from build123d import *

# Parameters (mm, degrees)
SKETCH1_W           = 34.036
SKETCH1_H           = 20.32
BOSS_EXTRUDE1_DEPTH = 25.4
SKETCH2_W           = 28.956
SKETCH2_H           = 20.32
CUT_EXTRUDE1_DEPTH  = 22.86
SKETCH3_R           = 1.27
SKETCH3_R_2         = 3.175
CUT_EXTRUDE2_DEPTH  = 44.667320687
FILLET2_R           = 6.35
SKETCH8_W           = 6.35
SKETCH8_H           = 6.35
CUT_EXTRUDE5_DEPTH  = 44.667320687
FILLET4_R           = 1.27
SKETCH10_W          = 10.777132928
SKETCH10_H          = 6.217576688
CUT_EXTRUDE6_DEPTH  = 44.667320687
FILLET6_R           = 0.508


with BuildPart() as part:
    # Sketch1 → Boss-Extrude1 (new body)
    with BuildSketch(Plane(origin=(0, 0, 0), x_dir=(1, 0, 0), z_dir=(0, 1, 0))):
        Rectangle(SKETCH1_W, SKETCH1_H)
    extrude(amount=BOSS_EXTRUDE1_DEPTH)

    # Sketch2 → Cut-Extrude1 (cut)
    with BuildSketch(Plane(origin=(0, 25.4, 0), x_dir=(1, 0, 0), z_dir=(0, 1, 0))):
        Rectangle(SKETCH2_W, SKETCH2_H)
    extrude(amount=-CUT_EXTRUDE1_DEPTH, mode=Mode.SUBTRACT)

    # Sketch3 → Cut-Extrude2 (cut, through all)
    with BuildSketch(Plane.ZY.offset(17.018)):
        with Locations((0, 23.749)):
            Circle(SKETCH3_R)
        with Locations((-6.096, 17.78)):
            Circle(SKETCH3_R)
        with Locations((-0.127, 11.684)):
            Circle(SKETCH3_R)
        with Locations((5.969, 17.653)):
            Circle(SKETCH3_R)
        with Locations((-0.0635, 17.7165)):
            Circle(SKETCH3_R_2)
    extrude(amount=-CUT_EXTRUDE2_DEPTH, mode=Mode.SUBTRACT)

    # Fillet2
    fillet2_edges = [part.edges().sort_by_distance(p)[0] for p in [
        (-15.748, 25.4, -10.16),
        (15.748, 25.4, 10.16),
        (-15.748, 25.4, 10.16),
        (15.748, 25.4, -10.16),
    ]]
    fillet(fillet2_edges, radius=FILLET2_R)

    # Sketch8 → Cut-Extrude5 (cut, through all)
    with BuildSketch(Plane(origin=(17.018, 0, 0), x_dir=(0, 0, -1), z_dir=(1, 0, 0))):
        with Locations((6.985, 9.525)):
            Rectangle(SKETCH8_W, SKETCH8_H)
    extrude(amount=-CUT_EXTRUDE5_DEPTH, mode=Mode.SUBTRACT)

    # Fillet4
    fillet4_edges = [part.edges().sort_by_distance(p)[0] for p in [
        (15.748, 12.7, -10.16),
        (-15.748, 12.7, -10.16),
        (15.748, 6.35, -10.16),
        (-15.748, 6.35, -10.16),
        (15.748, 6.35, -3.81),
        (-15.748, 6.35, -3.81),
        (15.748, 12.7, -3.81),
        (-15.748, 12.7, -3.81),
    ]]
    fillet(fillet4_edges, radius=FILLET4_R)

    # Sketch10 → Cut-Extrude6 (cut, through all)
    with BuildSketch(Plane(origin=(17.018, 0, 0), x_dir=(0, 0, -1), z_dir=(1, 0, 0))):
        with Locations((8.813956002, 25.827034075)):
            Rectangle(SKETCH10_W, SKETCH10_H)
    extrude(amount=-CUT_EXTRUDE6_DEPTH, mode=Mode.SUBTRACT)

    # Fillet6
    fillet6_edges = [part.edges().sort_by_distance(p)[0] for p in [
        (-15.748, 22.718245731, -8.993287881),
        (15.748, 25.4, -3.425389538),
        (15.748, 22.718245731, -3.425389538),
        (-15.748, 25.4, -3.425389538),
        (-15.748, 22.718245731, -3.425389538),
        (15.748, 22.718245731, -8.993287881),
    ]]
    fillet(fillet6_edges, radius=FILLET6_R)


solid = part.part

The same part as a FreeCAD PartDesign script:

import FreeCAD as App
import Part
import Sketcher
Q = App.Units.Quantity


def edges_at(feature, points):
    """Names of the edges that pass closest to the given points."""
    edges = feature.Shape.Edges
    near = lambda p: min(range(len(edges)), key=lambda i: edges[i].distToShape(Part.Vertex(*p))[0])
    return sorted({f"Edge{near(p) + 1}" for p in points})


def add_polygon(sketch, points):
    """Adds a closed chain of lines whose ends are joined by coincident constraints."""
    first, n = sketch.GeometryCount, len(points)
    for a, b in zip(points, points[1:] + points[:1]):
        sketch.addGeometry(Part.LineSegment(App.Vector(*a, 0), App.Vector(*b, 0)), False)
    for i in range(n):
        sketch.addConstraint(Sketcher.Constraint("Coincident", first + i, 2, first + (i + 1) % n, 1))

doc = App.newDocument("Part")
body = doc.addObject("PartDesign::Body", "Body")

# Sketch on XZ plane
sketch1 = doc.addObject("Sketcher::SketchObject", "Sketch")
body.addObject(sketch1)
sketch1.AttachmentSupport = (doc.XZ_Plane, [""])
sketch1.MapMode = "FlatFace"
add_polygon(sketch1, [(-17, -10), (-17, 10), (17, 10), (17, -10)])  # lines 0-3
sketch1.addConstraint(Sketcher.Constraint("Vertical", 0))
sketch1.addConstraint(Sketcher.Constraint("Horizontal", 1))
sketch1.addConstraint(Sketcher.Constraint("Vertical", 2))
sketch1.addConstraint(Sketcher.Constraint("Horizontal", 3))
sketch1.addConstraint(Sketcher.Constraint("Symmetric", 0, 2, 2, 2, -1, 1))
sketch1.addConstraint(Sketcher.Constraint("DistanceY", 0, 1, 0, 2, Q("0.8 in")))
sketch1.addConstraint(Sketcher.Constraint("DistanceX", 1, 1, 1, 2, Q("1.34 in")))
pad1 = doc.addObject("PartDesign::Pad", "Pad")
body.addObject(pad1)
pad1.Profile = sketch1
pad1.Length = Q("1 in")
pad1.Reversed = True

# Sketch on XZ plane
sketch2 = doc.addObject("Sketcher::SketchObject", "Sketch001")
body.addObject(sketch2)
sketch2.AttachmentSupport = (doc.XZ_Plane, [""])
sketch2.MapMode = "FlatFace"
sketch2.AttachmentOffset = App.Placement(App.Vector(0, 0, -1 * 25.4), App.Rotation())
add_polygon(sketch2, [(-14, -10), (-14, 10), (14, 10), (14, -10)])  # lines 0-3
sketch2.addConstraint(Sketcher.Constraint("Vertical", 0))
sketch2.addConstraint(Sketcher.Constraint("Horizontal", 1))
sketch2.addConstraint(Sketcher.Constraint("Vertical", 2))
sketch2.addConstraint(Sketcher.Constraint("Horizontal", 3))
sketch2.addConstraint(Sketcher.Constraint("Symmetric", 0, 2, 2, 2, -1, 1))
sketch2.addConstraint(Sketcher.Constraint("DistanceY", 0, 1, 0, 2, Q("0.8 in")))
sketch2.addConstraint(Sketcher.Constraint("DistanceX", 1, 1, 1, 2, Q("1.14 in")))
pocket1 = doc.addObject("PartDesign::Pocket", "Pocket")
body.addObject(pocket1)
pocket1.Profile = sketch2
pocket1.Length = Q("0.9 in")
pocket1.Reversed = True

# Sketch on YZ plane
sketch3 = doc.addObject("Sketcher::SketchObject", "Sketch002")
body.addObject(sketch3)
sketch3.AttachmentSupport = (doc.YZ_Plane, [""])
sketch3.MapMode = "FlatFace"
sketch3.AttachmentOffset = App.Placement(App.Vector(0, 0, -0.67 * 25.4), App.Rotation())
sketch3.addGeometry(Part.Circle(App.Vector(23.7, 0, 0), App.Vector(0, 0, 1), 1.3), False)
sketch3.addGeometry(Part.Circle(App.Vector(17.8, -6.1, 0), App.Vector(0, 0, 1), 1.3), False)
sketch3.addGeometry(Part.Circle(App.Vector(11.7, -0.1, 0), App.Vector(0, 0, 1), 1.3), False)
sketch3.addGeometry(Part.Circle(App.Vector(17.7, 6, 0), App.Vector(0, 0, 1), 1.3), False)
sketch3.addGeometry(Part.Circle(App.Vector(17.7, -0.1, 0), App.Vector(0, 0, 1), 3.2), False)
sketch3.addConstraint(Sketcher.Constraint("Equal", 0, 1))
sketch3.addConstraint(Sketcher.Constraint("Equal", 1, 2))
sketch3.addConstraint(Sketcher.Constraint("Equal", 2, 3))
sketch3.addConstraint(Sketcher.Constraint("PointOnObject", 0, 3, -1))
sketch3.addConstraint(Sketcher.Constraint("Diameter", 0, Q("0.1 in")))
sketch3.addConstraint(Sketcher.Constraint("Diameter", 4, Q("0.25 in")))
sketch3.addConstraint(Sketcher.Constraint("DistanceX", -1, 1, 1, 3, Q("0.7 in")))
sketch3.addConstraint(Sketcher.Constraint("DistanceY", 1, 3, -1, 1, Q("0.24 in")))
sketch3.addConstraint(Sketcher.Constraint("DistanceX", -1, 1, 2, 3, Q("0.46 in")))
sketch3.addConstraint(Sketcher.Constraint("DistanceX", 3, 3, 0, 3, Q("0.24 in")))
sketch3.addConstraint(Sketcher.Constraint("DistanceY", 2, 3, 3, 3, Q("0.24 in")))
sketch3.addConstraint(Sketcher.Constraint("DistanceX", -1, 1, 0, 3, Q("0.935 in")))
sketch3.addConstraint(Sketcher.Constraint("DistanceY", 2, 3, -1, 1, Q("0.005 in")))
sketch3.addConstraint(Sketcher.Constraint("DistanceX", -1, 1, 4, 3, Q("0.6975 in")))
sketch3.addConstraint(Sketcher.Constraint("DistanceY", 4, 3, -1, 1, Q("0.0025 in")))
pocket2 = doc.addObject("PartDesign::Pocket", "Pocket001")
body.addObject(pocket2)
pocket2.Profile = sketch3
pocket2.Type = "ThroughAll"
pocket2.Reversed = True
doc.recompute()

fillet = doc.addObject("PartDesign::Fillet", "Fillet")
body.addObject(fillet)
fillet.Base = (pocket2, edges_at(pocket2, [
    (-15.748, 25.4, -10.16),
    (15.748, 25.4, 10.16),
    (-15.748, 25.4, 10.16),
    (15.748, 25.4, -10.16),
]))
fillet.Radius = Q("0.25 in")

# Sketch on YZ plane
sketch4 = doc.addObject("Sketcher::SketchObject", "Sketch003")
body.addObject(sketch4)
sketch4.AttachmentSupport = (doc.YZ_Plane, [""])
sketch4.MapMode = "FlatFace"
sketch4.AttachmentOffset = App.Placement(App.Vector(0, 0, 0.67 * 25.4), App.Rotation())
add_polygon(sketch4, [(13, -4), (6, -4), (6, -10), (13, -10)])  # lines 0-3
sketch4.addConstraint(Sketcher.Constraint("Horizontal", 0))
sketch4.addConstraint(Sketcher.Constraint("Vertical", 1))
sketch4.addConstraint(Sketcher.Constraint("Horizontal", 2))
sketch4.addConstraint(Sketcher.Constraint("Vertical", 3))
sketch4.addConstraint(Sketcher.Constraint("Equal", 2, 1))
sketch4.addConstraint(Sketcher.Constraint("DistanceX", 0, 2, 0, 1, Q("0.25 in")))
sketch4.addConstraint(Sketcher.Constraint("DistanceY", 1, 2, -1, 1, Q("0.4 in")))
sketch4.addConstraint(Sketcher.Constraint("DistanceX", -1, 1, 2, 2, Q("0.5 in")))
pocket3 = doc.addObject("PartDesign::Pocket", "Pocket002")
body.addObject(pocket3)
pocket3.Profile = sketch4
pocket3.Type = "ThroughAll"
doc.recompute()

fillet2 = doc.addObject("PartDesign::Fillet", "Fillet001")
body.addObject(fillet2)
fillet2.Base = (pocket3, edges_at(pocket3, [
    (15.748, 12.7, -10.16),
    (-15.748, 12.7, -10.16),
    (15.748, 6.35, -10.16),
    (-15.748, 6.35, -10.16),
    (15.748, 6.35, -3.81),
    (-15.748, 6.35, -3.81),
    (15.748, 12.7, -3.81),
    (-15.748, 12.7, -3.81),
]))
fillet2.Radius = Q("0.05 in")

# Sketch on YZ plane
sketch5 = doc.addObject("Sketcher::SketchObject", "Sketch004")
body.addObject(sketch5)
sketch5.AttachmentSupport = (doc.YZ_Plane, [""])
sketch5.MapMode = "FlatFace"
sketch5.AttachmentOffset = App.Placement(App.Vector(0, 0, 0.67 * 25.4), App.Rotation())
add_polygon(sketch5, [(29, -3), (23, -3), (23, -14), (29, -14)])  # lines 0-3
sketch5.addConstraint(Sketcher.Constraint("Horizontal", 0))
sketch5.addConstraint(Sketcher.Constraint("Vertical", 1))
sketch5.addConstraint(Sketcher.Constraint("Horizontal", 2))
sketch5.addConstraint(Sketcher.Constraint("Vertical", 3))
sketch5.addConstraint(Sketcher.Constraint("DistanceX", 0, 2, 0, 1, 6.217577))
sketch5.addConstraint(Sketcher.Constraint("DistanceY", 1, 2, 1, 1, 10.777133))
sketch5.addConstraint(Sketcher.Constraint("DistanceY", 0, 2, -1, 1, 3.42539))
sketch5.addConstraint(Sketcher.Constraint("DistanceX", -1, 1, 0, 2, 22.718246))
pocket4 = doc.addObject("PartDesign::Pocket", "Pocket003")
body.addObject(pocket4)
pocket4.Profile = sketch5
pocket4.Type = "ThroughAll"
doc.recompute()

fillet3 = doc.addObject("PartDesign::Fillet", "Fillet002")
body.addObject(fillet3)
fillet3.Base = (pocket4, edges_at(pocket4, [
    (-15.748, 22.718, -8.993),
    (15.748, 25.4, -3.425),
    (15.748, 22.718, -3.425),
    (-15.748, 25.4, -3.425),
    (-15.748, 22.718, -3.425),
    (15.748, 22.718, -8.993),
]))
fillet3.Radius = Q("0.02 in")

doc.recompute()
